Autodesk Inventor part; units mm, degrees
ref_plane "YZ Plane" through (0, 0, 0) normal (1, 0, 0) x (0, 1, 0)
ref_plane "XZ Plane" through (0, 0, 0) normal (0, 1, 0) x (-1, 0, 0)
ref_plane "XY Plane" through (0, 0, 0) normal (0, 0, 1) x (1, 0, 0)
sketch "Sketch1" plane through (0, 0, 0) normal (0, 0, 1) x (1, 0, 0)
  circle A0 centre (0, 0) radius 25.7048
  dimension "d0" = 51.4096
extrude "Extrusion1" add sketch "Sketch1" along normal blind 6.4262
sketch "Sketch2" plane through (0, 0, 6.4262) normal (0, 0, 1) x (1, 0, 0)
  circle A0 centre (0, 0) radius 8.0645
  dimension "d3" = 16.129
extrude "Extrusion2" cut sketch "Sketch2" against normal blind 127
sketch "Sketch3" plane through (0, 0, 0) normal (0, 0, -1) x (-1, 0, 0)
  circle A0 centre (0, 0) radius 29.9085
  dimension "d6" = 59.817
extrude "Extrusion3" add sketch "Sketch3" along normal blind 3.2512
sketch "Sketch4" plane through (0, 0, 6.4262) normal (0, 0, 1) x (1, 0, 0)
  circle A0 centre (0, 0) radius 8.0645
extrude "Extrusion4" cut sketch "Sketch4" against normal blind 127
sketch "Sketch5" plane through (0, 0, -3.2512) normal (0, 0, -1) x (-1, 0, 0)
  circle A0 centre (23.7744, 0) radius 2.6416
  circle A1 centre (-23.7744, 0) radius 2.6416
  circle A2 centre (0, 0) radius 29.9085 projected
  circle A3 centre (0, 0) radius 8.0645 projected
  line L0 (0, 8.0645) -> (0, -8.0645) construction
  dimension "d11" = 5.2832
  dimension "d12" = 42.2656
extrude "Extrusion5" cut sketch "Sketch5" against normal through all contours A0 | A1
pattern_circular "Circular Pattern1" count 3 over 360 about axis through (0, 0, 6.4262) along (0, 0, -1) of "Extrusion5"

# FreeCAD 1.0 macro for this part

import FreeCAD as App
import Part
import Sketcher
Q = App.Units.Quantity

doc = App.newDocument("Part")
body = doc.addObject("PartDesign::Body", "Body")

sketch1 = body.newObject("Sketcher::SketchObject", "Sketch")
sketch1.AttachmentSupport = (doc.getObject("XY_Plane"), [""])
sketch1.MapMode = "FlatFace"
sketch1.addGeometry(Part.Circle(App.Vector(0, 0, 0), App.Vector(0, 0, 1), 25.7048), False)
sketch1.addConstraint([
    Sketcher.Constraint("Coincident", 0, 3, -1, 1),
    Sketcher.Constraint("Diameter", 0, Q("2.024 in")),
])
pad1 = body.newObject("PartDesign::Pad", "Pad")
pad1.Profile = sketch1
pad1.Length = Q("0.253 in")

sketch2 = body.newObject("Sketcher::SketchObject", "Sketch001")
sketch2.AttachmentSupport = (doc.getObject("XY_Plane"), [""])
sketch2.MapMode = "FlatFace"
sketch2.AttachmentOffset = App.Placement(App.Vector(0, 0, 0.253 * 25.4), App.Rotation())
sketch2.addGeometry(Part.Circle(App.Vector(0, 0, 0), App.Vector(0, 0, 1), 8.0645), False)
sketch2.addConstraint([
    Sketcher.Constraint("Coincident", 0, 3, -1, 1),
    Sketcher.Constraint("Diameter", 0, Q("0.635 in")),
])
pocket1 = body.newObject("PartDesign::Pocket", "Pocket")
pocket1.Profile = sketch2
pocket1.Length = Q("5 in")

sketch3 = body.newObject("Sketcher::SketchObject", "Sketch002")
sketch3.AttachmentSupport = (doc.getObject("XY_Plane"), [""])
sketch3.MapMode = "FlatFace"
sketch3.addGeometry(Part.Circle(App.Vector(0, 0, 0), App.Vector(0, 0, 1), 29.9085), False)
sketch3.addConstraint([
    Sketcher.Constraint("Coincident", 0, 3, -1, 1),
    Sketcher.Constraint("Diameter", 0, Q("2.355 in")),
])
pad2 = body.newObject("PartDesign::Pad", "Pad001")
pad2.Profile = sketch3
pad2.Length = Q("0.128 in")
pad2.Reversed = True

sketch4 = body.newObject("Sketcher::SketchObject", "Sketch003")
sketch4.AttachmentSupport = (doc.getObject("XY_Plane"), [""])
sketch4.MapMode = "FlatFace"
sketch4.AttachmentOffset = App.Placement(App.Vector(0, 0, 0.253 * 25.4), App.Rotation())
sketch4.addGeometry(Part.Circle(App.Vector(0, 0, 0), App.Vector(0, 0, 1), 8.0645), False)
sketch4.addConstraint([
    Sketcher.Constraint("Coincident", 0, 3, -1, 1),
    Sketcher.Constraint("Diameter", 0, Q("0.635 in")),
])
pocket2 = body.newObject("PartDesign::Pocket", "Pocket001")
pocket2.Profile = sketch4
pocket2.Length = Q("5 in")

sketch5 = body.newObject("Sketcher::SketchObject", "Sketch004")
sketch5.AttachmentSupport = (doc.getObject("XY_Plane"), [""])
sketch5.MapMode = "FlatFace"
sketch5.AttachmentOffset = App.Placement(App.Vector(0, 0, -0.128 * 25.4), App.Rotation())
sketch5.addGeometry([
    Part.Circle(App.Vector(-23.7744, 0, 0), App.Vector(0, 0, 1), 2.6416),
    Part.Circle(App.Vector(23.7744, 0, 0), App.Vector(0, 0, 1), 2.6416),
], False)
sketch5.addConstraint([
    Sketcher.Constraint("Equal", 0, 1),
    Sketcher.Constraint("Symmetric", 0, 3, 1, 3, -1, 1),
    Sketcher.Constraint("PointOnObject", 0, 3, -1),
    Sketcher.Constraint("Diameter", 0, Q("0.208 in")),
    Sketcher.Constraint("DistanceX", 0, 3, -1, 1, Q("0.936 in")),
])
pocket3 = body.newObject("PartDesign::Pocket", "Pocket002")
pocket3.Profile = sketch5
pocket3.Type = "ThroughAll"
pocket3.Reversed = True
doc.recompute()

polarpattern = body.newObject("PartDesign::PolarPattern", "PolarPattern")
polarpattern.Originals = [pocket3]
polarpattern.Axis = (doc.getObject("Z_Axis"), [""])
polarpattern.Angle = 360
polarpattern.Occurrences = 3
body.Tip = polarpattern

doc.recompute()
